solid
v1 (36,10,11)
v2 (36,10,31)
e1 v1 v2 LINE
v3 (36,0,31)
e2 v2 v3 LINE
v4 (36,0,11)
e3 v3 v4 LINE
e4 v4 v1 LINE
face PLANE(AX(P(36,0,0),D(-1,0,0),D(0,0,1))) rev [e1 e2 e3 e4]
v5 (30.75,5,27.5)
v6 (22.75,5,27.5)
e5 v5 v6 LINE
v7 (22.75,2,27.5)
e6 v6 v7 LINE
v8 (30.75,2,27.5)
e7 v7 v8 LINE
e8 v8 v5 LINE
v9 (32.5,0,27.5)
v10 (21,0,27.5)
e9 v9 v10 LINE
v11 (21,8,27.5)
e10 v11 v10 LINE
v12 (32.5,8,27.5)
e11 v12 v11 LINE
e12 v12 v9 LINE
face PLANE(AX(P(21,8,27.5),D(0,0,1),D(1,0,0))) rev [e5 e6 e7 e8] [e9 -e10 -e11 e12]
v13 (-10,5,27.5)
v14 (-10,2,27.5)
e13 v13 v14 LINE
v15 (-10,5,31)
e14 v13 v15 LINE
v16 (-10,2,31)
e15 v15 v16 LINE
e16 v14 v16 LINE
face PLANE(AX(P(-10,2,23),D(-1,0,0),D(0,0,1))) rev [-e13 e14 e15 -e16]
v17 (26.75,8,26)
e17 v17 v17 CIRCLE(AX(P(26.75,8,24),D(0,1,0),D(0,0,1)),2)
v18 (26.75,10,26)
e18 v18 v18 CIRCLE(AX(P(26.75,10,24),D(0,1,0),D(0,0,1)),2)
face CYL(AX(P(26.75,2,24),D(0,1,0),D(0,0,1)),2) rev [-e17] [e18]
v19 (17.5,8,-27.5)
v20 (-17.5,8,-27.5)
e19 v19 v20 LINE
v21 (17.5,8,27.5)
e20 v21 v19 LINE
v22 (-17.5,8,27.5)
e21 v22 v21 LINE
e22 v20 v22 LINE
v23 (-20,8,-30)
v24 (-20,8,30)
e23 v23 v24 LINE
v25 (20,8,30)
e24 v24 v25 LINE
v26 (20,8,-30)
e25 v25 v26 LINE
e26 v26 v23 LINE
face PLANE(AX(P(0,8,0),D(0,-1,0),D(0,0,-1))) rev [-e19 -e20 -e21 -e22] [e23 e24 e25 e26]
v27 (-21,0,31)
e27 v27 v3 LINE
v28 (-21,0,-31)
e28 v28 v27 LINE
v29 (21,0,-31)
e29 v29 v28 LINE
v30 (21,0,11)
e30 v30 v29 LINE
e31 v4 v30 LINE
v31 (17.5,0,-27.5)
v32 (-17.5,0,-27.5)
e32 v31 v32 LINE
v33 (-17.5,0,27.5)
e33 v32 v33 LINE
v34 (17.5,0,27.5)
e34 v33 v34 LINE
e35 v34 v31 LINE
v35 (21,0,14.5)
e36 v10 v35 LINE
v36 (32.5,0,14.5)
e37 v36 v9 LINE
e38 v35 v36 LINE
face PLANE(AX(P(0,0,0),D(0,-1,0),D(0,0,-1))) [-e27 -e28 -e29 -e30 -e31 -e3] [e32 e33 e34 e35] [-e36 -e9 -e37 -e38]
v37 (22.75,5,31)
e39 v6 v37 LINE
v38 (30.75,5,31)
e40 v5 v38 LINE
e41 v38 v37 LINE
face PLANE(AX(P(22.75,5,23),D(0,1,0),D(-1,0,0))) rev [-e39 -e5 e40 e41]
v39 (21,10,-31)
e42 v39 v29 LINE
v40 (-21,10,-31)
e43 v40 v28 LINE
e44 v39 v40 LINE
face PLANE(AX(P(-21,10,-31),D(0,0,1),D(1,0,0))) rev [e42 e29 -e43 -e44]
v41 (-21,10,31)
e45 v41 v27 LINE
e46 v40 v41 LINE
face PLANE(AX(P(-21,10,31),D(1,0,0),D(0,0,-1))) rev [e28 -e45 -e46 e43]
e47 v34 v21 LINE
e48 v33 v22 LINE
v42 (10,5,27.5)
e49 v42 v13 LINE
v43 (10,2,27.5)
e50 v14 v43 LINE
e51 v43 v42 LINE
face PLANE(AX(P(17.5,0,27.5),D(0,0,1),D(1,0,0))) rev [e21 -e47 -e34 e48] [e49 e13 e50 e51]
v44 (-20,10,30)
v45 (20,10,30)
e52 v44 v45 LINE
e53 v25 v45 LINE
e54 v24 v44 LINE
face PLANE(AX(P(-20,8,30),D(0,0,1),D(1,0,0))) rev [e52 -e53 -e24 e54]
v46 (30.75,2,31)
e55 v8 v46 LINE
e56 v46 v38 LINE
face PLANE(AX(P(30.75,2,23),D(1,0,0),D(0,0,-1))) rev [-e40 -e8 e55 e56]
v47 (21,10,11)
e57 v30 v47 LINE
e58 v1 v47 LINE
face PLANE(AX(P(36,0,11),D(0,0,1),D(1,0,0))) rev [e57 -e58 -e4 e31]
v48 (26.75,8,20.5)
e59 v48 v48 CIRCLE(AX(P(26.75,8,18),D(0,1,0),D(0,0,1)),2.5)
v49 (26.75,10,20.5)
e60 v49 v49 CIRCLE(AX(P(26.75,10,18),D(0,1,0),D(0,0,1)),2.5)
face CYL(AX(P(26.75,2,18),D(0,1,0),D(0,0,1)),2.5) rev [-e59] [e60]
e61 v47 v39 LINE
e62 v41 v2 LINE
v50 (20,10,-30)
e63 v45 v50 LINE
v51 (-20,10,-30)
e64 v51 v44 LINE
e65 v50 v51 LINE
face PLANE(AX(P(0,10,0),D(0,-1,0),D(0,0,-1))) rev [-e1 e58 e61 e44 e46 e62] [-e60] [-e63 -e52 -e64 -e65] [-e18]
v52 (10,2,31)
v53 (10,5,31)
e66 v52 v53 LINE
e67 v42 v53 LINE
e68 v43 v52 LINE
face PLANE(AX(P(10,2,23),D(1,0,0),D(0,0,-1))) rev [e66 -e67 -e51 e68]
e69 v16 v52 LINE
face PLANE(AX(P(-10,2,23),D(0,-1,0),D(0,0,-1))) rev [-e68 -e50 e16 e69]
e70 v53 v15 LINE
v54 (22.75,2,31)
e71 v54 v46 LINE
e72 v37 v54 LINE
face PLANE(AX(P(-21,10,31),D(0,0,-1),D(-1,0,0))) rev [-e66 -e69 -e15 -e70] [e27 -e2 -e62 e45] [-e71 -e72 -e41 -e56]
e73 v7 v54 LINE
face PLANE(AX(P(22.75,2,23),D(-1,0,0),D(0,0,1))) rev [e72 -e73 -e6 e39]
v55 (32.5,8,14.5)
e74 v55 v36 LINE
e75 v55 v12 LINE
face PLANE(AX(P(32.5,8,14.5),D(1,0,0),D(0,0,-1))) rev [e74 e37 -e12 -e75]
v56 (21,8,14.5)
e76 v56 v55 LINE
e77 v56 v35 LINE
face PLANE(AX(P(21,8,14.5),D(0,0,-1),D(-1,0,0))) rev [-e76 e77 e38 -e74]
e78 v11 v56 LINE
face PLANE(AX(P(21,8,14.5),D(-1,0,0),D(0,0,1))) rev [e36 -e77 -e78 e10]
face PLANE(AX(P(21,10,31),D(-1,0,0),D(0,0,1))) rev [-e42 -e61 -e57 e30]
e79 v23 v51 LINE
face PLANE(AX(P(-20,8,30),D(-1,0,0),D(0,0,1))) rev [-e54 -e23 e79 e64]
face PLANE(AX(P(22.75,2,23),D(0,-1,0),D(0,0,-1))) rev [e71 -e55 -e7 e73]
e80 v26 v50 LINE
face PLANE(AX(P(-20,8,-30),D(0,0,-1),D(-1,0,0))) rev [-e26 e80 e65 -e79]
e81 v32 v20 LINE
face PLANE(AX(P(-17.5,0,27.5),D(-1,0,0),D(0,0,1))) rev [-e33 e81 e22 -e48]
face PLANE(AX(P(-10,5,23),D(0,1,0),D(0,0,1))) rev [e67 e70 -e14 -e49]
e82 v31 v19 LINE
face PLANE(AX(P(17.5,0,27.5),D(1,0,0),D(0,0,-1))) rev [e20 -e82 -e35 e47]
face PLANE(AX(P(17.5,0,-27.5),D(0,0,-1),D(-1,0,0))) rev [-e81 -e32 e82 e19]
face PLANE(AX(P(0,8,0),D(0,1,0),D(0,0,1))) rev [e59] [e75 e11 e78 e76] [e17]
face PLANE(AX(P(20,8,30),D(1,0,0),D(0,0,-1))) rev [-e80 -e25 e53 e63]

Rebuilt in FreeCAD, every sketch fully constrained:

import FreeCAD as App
import Part
import Sketcher

V = App.Vector
Q = App.Units.Quantity

doc = App.newDocument("Part")
body = doc.addObject("PartDesign::Body", "Body")

sketch1 = body.newObject("Sketcher::SketchObject", "Sketch")
sketch1.AttachmentSupport = (doc.getObject("XZ_Plane"), [""])
sketch1.MapMode = "FlatFace"
sketch1.addGeometry([
    Part.LineSegment(V(-21, -31, 0), V(-21, 31, 0)),
    Part.LineSegment(V(-21, 31, 0), V(21, 31, 0)),
    Part.LineSegment(V(21, 31, 0), V(21, -31, 0)),
    Part.LineSegment(V(21, -31, 0), V(-21, -31, 0)),
], False)
sketch1.addConstraint([
    Sketcher.Constraint("Coincident", 0, 2, 1, 1),
    Sketcher.Constraint("Coincident", 1, 2, 2, 1),
    Sketcher.Constraint("Coincident", 2, 2, 3, 1),
    Sketcher.Constraint("Coincident", 3, 2, 0, 1),
    Sketcher.Constraint("Vertical", 0),
    Sketcher.Constraint("Horizontal", 1),
    Sketcher.Constraint("Vertical", 2),
    Sketcher.Constraint("Horizontal", 3),
    Sketcher.Constraint("Symmetric", 0, 2, 2, 2, -1, 1),
    Sketcher.Constraint("DistanceX", 1, 1, 1, 2, Q("42 mm")),
    Sketcher.Constraint("DistanceY", 0, 1, 0, 2, Q("62 mm")),
])
pad1 = body.newObject("PartDesign::Pad", "Pad")
pad1.Profile = sketch1
pad1.Length = 10
pad1.Reversed = True

sketch2 = body.newObject("Sketcher::SketchObject", "Sketch001")
sketch2.AttachmentSupport = (doc.getObject("XZ_Plane"), [""])
sketch2.MapMode = "FlatFace"
sketch2.AttachmentOffset = App.Placement(V(0, 0, -10), App.Rotation())
sketch2.addGeometry([
    Part.LineSegment(V(-20, -30, 0), V(-20, 30, 0)),
    Part.LineSegment(V(-20, 30, 0), V(20, 30, 0)),
    Part.LineSegment(V(20, 30, 0), V(20, -30, 0)),
    Part.LineSegment(V(20, -30, 0), V(-20, -30, 0)),
], False)
sketch2.addConstraint([
    Sketcher.Constraint("Coincident", 0, 2, 1, 1),
    Sketcher.Constraint("Coincident", 1, 2, 2, 1),
    Sketcher.Constraint("Coincident", 2, 2, 3, 1),
    Sketcher.Constraint("Coincident", 3, 2, 0, 1),
    Sketcher.Constraint("Vertical", 0),
    Sketcher.Constraint("Horizontal", 1),
    Sketcher.Constraint("Vertical", 2),
    Sketcher.Constraint("Horizontal", 3),
    Sketcher.Constraint("Symmetric", 0, 2, 2, 2, -1, 1),
    Sketcher.Constraint("DistanceX", 1, 1, 1, 2, Q("40 mm")),
    Sketcher.Constraint("DistanceY", 0, 1, 0, 2, Q("60 mm")),
])
pocket1 = body.newObject("PartDesign::Pocket", "Pocket")
pocket1.Profile = sketch2
pocket1.Length = 2
pocket1.Reversed = True

sketch3 = body.newObject("Sketcher::SketchObject", "Sketch002")
sketch3.AttachmentSupport = (doc.getObject("XZ_Plane"), [""])
sketch3.MapMode = "FlatFace"
sketch3.AttachmentOffset = App.Placement(V(0, 0, -8), App.Rotation())
sketch3.addGeometry([
    Part.LineSegment(V(-18, -28, 0), V(-18, 28, 0)),
    Part.LineSegment(V(-18, 28, 0), V(18, 28, 0)),
    Part.LineSegment(V(18, 28, 0), V(18, -28, 0)),
    Part.LineSegment(V(18, -28, 0), V(-18, -28, 0)),
], False)
sketch3.addConstraint([
    Sketcher.Constraint("Coincident", 0, 2, 1, 1),
    Sketcher.Constraint("Coincident", 1, 2, 2, 1),
    Sketcher.Constraint("Coincident", 2, 2, 3, 1),
    Sketcher.Constraint("Coincident", 3, 2, 0, 1),
    Sketcher.Constraint("Vertical", 0),
    Sketcher.Constraint("Horizontal", 1),
    Sketcher.Constraint("Vertical", 2),
    Sketcher.Constraint("Horizontal", 3),
    Sketcher.Constraint("Symmetric", 0, 2, 2, 2, -1, 1),
    Sketcher.Constraint("DistanceX", 1, 1, 1, 2, Q("35 mm")),
    Sketcher.Constraint("DistanceY", 0, 1, 0, 2, Q("55 mm")),
])
pocket2 = body.newObject("PartDesign::Pocket", "Pocket001")
pocket2.Profile = sketch3
pocket2.Length = 8
pocket2.Reversed = True

sketch4 = body.newObject("Sketcher::SketchObject", "Sketch003")
sketch4.AttachmentSupport = (doc.getObject("XY_Plane"), [""])
sketch4.MapMode = "FlatFace"
sketch4.AttachmentOffset = App.Placement(V(0, 0, 31), App.Rotation())
sketch4.addGeometry([
    Part.LineSegment(V(-10, 5, 0), V(-10, 2, 0)),
    Part.LineSegment(V(-10, 2, 0), V(10, 2, 0)),
    Part.LineSegment(V(10, 2, 0), V(10, 5, 0)),
    Part.LineSegment(V(10, 5, 0), V(-10, 5, 0)),
], False)
sketch4.addConstraint([
    Sketcher.Constraint("Coincident", 0, 2, 1, 1),
    Sketcher.Constraint("Coincident", 1, 2, 2, 1),
    Sketcher.Constraint("Coincident", 2, 2, 3, 1),
    Sketcher.Constraint("Coincident", 3, 2, 0, 1),
    Sketcher.Constraint("Vertical", 0),
    Sketcher.Constraint("Horizontal", 1),
    Sketcher.Constraint("Vertical", 2),
    Sketcher.Constraint("Horizontal", 3),
    Sketcher.Constraint("DistanceX", 1, 1, 1, 2, Q("20 mm")),
    Sketcher.Constraint("DistanceY", 0, 2, 0, 1, Q("3 mm")),
    Sketcher.Constraint("DistanceX", 0, 2, -1, 1, Q("10 mm")),
    Sketcher.Constraint("DistanceY", -1, 1, 0, 2, Q("2 mm")),
])
pocket3 = body.newObject("PartDesign::Pocket", "Pocket002")
pocket3.Profile = sketch4
pocket3.Length = 8

sketch5 = body.newObject("Sketcher::SketchObject", "Sketch004")
sketch5.AttachmentSupport = (doc.getObject("YZ_Plane"), [""])
sketch5.MapMode = "FlatFace"
sketch5.AttachmentOffset = App.Placement(V(0, 0, 21), App.Rotation())
sketch5.addGeometry([
    Part.LineSegment(V(10, 31, 0), V(0, 31, 0)),
    Part.LineSegment(V(0, 31, 0), V(0, 11, 0)),
    Part.LineSegment(V(0, 11, 0), V(10, 11, 0)),
    Part.LineSegment(V(10, 11, 0), V(10, 31, 0)),
], False)
sketch5.addConstraint([
    Sketcher.Constraint("Coincident", 0, 2, 1, 1),
    Sketcher.Constraint("Coincident", 1, 2, 2, 1),
    Sketcher.Constraint("Coincident", 2, 2, 3, 1),
    Sketcher.Constraint("Coincident", 3, 2, 0, 1),
    Sketcher.Constraint("Horizontal", 0),
    Sketcher.Constraint("Vertical", 1),
    Sketcher.Constraint("Horizontal", 2),
    Sketcher.Constraint("Vertical", 3),
    Sketcher.Constraint("PointOnObject", 0, 2, -2),
    Sketcher.Constraint("DistanceX", 0, 2, 0, 1, Q("10 mm")),
    Sketcher.Constraint("DistanceY", 1, 2, 1, 1, Q("20 mm")),
    Sketcher.Constraint("DistanceY", -1, 1, 0, 2, Q("31 mm")),
])
pad2 = body.newObject("PartDesign::Pad", "Pad001")
pad2.Profile = sketch5
pad2.Length = 15

sketch6 = body.newObject("Sketcher::SketchObject", "Sketch005")
sketch6.AttachmentSupport = (doc.getObject("XZ_Plane"), [""])
sketch6.MapMode = "FlatFace"
sketch6.addGeometry([
    Part.LineSegment(V(32, 14, 0), V(32, 28, 0)),
    Part.LineSegment(V(32, 28, 0), V(21, 28, 0)),
    Part.LineSegment(V(21, 28, 0), V(21, 14, 0)),
    Part.LineSegment(V(21, 14, 0), V(32, 14, 0)),
], False)
sketch6.addConstraint([
    Sketcher.Constraint("Coincident", 0, 2, 1, 1),
    Sketcher.Constraint("Coincident", 1, 2, 2, 1),
    Sketcher.Constraint("Coincident", 2, 2, 3, 1),
    Sketcher.Constraint("Coincident", 3, 2, 0, 1),
    Sketcher.Constraint("Vertical", 0),
    Sketcher.Constraint("Horizontal", 1),
    Sketcher.Constraint("Vertical", 2),
    Sketcher.Constraint("Horizontal", 3),
    Sketcher.Constraint("DistanceY", 0, 1, 0, 2, Q("13 mm")),
    Sketcher.Constraint("DistanceX", 1, 2, 1, 1, Q("11.5 mm")),
    Sketcher.Constraint("DistanceX", -1, 1, 1, 2, Q("21 mm")),
    Sketcher.Constraint("DistanceY", -1, 1, 0, 2, Q("27.5 mm")),
])
pocket4 = body.newObject("PartDesign::Pocket", "Pocket003")
pocket4.Profile = sketch6
pocket4.Length = 8

sketch7 = body.newObject("Sketcher::SketchObject", "Sketch006")
sketch7.AttachmentSupport = (doc.getObject("XZ_Plane"), [""])
sketch7.MapMode = "FlatFace"
sketch7.AttachmentOffset = App.Placement(V(0, 0, -10), App.Rotation())
sketch7.addGeometry([
    Part.Circle(V(26.8, 18, 0), V(0, 0, 1), 2.5),
    Part.Circle(V(26.8, 24, 0), V(0, 0, 1), 2),
], False)
sketch7.addConstraint([
    Sketcher.Constraint("Vertical", 0, 3, 1, 3),
    Sketcher.Constraint("Diameter", 0, Q("5 mm")),
    Sketcher.Constraint("Diameter", 1, Q("4 mm")),
    Sketcher.Constraint("DistanceY", -1, 1, 0, 3, Q("18 mm")),
    Sketcher.Constraint("DistanceY", -1, 1, 1, 3, Q("24 mm")),
    Sketcher.Constraint("DistanceX", -1, 1, 0, 3, Q("26.75 mm")),
])
pocket5 = body.newObject("PartDesign::Pocket", "Pocket004")
pocket5.Profile = sketch7
pocket5.Length = 8
pocket5.Reversed = True

sketch8 = body.newObject("Sketcher::SketchObject", "Sketch007")
sketch8.AttachmentSupport = (doc.getObject("XY_Plane"), [""])
sketch8.MapMode = "FlatFace"
sketch8.AttachmentOffset = App.Placement(V(0, 0, 31), App.Rotation())
sketch8.addGeometry([
    Part.LineSegment(V(22.8, 5, 0), V(22.8, 2, 0)),
    Part.LineSegment(V(22.8, 2, 0), V(30.8, 2, 0)),
    Part.LineSegment(V(30.8, 2, 0), V(30.8, 5, 0)),
    Part.LineSegment(V(30.8, 5, 0), V(22.8, 5, 0)),
], False)
sketch8.addConstraint([
    Sketcher.Constraint("Coincident", 0, 2, 1, 1),
    Sketcher.Constraint("Coincident", 1, 2, 2, 1),
    Sketcher.Constraint("Coincident", 2, 2, 3, 1),
    Sketcher.Constraint("Coincident", 3, 2, 0, 1),
    Sketcher.Constraint("Vertical", 0),
    Sketcher.Constraint("Horizontal", 1),
    Sketcher.Constraint("Vertical", 2),
    Sketcher.Constraint("Horizontal", 3),
    Sketcher.Constraint("DistanceX", 1, 1, 1, 2, Q("8 mm")),
    Sketcher.Constraint("DistanceY", 0, 2, 0, 1, Q("3 mm")),
    Sketcher.Constraint("DistanceY", -1, 1, 0, 2, Q("2 mm")),
    Sketcher.Constraint("DistanceX", -1, 1, 0, 2, Q("22.75 mm")),
])
pocket6 = body.newObject("PartDesign::Pocket", "Pocket005")
pocket6.Profile = sketch8
pocket6.Length = 8

doc.recompute()
